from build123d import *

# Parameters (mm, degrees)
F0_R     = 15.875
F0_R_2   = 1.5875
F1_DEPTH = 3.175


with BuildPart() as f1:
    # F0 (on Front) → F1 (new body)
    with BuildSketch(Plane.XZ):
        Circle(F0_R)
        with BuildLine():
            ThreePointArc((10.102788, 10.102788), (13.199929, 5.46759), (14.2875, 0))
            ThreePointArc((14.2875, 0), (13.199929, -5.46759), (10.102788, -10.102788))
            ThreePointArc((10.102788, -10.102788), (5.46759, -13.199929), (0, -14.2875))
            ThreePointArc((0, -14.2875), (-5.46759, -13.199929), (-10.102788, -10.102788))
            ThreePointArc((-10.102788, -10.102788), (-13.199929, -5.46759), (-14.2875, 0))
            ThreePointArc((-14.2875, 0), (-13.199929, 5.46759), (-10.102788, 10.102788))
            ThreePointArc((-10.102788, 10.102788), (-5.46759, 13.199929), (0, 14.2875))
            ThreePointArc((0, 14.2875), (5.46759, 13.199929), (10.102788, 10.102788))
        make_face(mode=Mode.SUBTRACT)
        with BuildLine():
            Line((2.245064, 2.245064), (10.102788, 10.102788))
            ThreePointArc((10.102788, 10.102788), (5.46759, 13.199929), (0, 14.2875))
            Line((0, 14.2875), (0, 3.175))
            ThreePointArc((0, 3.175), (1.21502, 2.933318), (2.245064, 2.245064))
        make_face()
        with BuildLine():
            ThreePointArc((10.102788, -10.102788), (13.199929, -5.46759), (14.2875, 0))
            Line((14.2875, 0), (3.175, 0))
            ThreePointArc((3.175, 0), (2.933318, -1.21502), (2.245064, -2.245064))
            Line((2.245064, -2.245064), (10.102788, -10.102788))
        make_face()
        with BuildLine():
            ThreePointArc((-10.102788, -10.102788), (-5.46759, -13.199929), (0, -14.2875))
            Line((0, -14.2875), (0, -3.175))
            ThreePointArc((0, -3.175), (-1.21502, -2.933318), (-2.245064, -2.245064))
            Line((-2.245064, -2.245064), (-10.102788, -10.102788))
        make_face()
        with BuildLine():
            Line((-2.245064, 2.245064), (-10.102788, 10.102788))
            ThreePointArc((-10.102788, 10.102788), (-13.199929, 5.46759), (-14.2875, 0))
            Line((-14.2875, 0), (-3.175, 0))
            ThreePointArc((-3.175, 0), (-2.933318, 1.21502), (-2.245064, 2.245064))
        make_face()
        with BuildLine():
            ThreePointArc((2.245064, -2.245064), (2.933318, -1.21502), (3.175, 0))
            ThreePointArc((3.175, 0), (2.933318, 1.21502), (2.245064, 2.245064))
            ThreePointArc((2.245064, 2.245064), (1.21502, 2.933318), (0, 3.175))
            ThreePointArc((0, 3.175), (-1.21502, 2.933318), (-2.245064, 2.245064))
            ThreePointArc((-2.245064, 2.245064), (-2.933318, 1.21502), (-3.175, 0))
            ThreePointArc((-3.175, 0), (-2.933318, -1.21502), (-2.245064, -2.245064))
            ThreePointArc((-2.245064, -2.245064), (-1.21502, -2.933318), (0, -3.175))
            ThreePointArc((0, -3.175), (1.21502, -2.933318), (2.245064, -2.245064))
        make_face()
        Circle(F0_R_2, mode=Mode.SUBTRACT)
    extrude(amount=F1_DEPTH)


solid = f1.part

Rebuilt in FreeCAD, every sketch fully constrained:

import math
import FreeCAD as App
import Part
import Sketcher
from FreeCAD import Vector
Q = App.Units.Quantity

doc = App.newDocument("Part")
body = doc.addObject("PartDesign::Body", "Body")

sketch1 = body.newObject("Sketcher::SketchObject", "Sketch")
sketch1.AttachmentSupport = (doc.getObject("XZ_Plane"), [""])
sketch1.MapMode = "FlatFace"
sketch1.addGeometry(Part.Circle(Vector(0, 0, 0), Vector(0, 0, 1), 15.875), False)
sketch1.addGeometry(Part.LineSegment(Vector(-2.245064, -2.245064, 0), Vector(-10.102788, -10.102788, 0)), False)
sketch1.addGeometry(Part.ArcOfCircle(Part.Circle(Vector(-0.000005, -0.000002, 0), Vector(0, 0, 1), 14.287495), math.radians(179.999992), math.radians(225.00001)), False)
sketch1.addGeometry(Part.LineSegment(Vector(-14.2875, 0, 0), Vector(-3.175, 0, 0)), False)
sketch1.addGeometry(Part.ArcOfCircle(Part.Circle(Vector(-0.000006, -0.000003, 0), Vector(0, 0, 1), 3.174994), math.radians(179.999955), math.radians(225.000047)), False)
sketch1.addGeometry(Part.LineSegment(Vector(2.245064, -2.245064, 0), Vector(10.102788, -10.102788, 0)), False)
sketch1.addGeometry(Part.ArcOfCircle(Part.Circle(Vector(0.000002, -0.000005, 0), Vector(0, 0, 1), 14.287495), math.radians(-90.000008), math.radians(-44.99999)), False)
sketch1.addGeometry(Part.LineSegment(Vector(0, -14.2875, 0), Vector(0, -3.175, 0)), False)
sketch1.addGeometry(Part.ArcOfCircle(Part.Circle(Vector(0.000003, -0.000006, 0), Vector(0, 0, 1), 3.174994), math.radians(-90.000045), math.radians(-44.999953)), False)
sketch1.addGeometry(Part.ArcOfCircle(Part.Circle(Vector(-0.000002, 0.000005, 0), Vector(0, 0, 1), 14.287495), math.radians(89.999992), math.radians(135.00001)), False)
sketch1.addGeometry(Part.LineSegment(Vector(0, 14.2875, 0), Vector(0, 3.175, 0)), False)
sketch1.addGeometry(Part.ArcOfCircle(Part.Circle(Vector(-0.000003, 0.000006, 0), Vector(0, 0, 1), 3.174994), math.radians(89.999955), math.radians(135.000047)), False)
sketch1.addGeometry(Part.LineSegment(Vector(-2.245064, 2.245064, 0), Vector(-10.102788, 10.102788, 0)), False)
sketch1.addGeometry(Part.Circle(Vector(0, 0, 0), Vector(0, 0, 1), 1.5875), False)
sketch1.addGeometry(Part.LineSegment(Vector(2.245064, 2.245064, 0), Vector(10.102788, 10.102788, 0)), False)
sketch1.addGeometry(Part.ArcOfCircle(Part.Circle(Vector(0.000005, 0.000002, 0), Vector(0, 0, 1), 14.287495), math.radians(-0.000008), math.radians(45.00001)), False)
sketch1.addGeometry(Part.LineSegment(Vector(14.2875, 0, 0), Vector(3.175, 0, 0)), False)
sketch1.addGeometry(Part.ArcOfCircle(Part.Circle(Vector(0.000006, 0.000003, 0), Vector(0, 0, 1), 3.174994), math.radians(-0.000045), math.radians(45.000047)), False)
sketch1.addConstraint(Sketcher.Constraint("Coincident", 1, 2, 2, 2))
sketch1.addConstraint(Sketcher.Constraint("Coincident", 2, 1, 3, 1))
sketch1.addConstraint(Sketcher.Constraint("Coincident", 3, 2, 4, 1))
sketch1.addConstraint(Sketcher.Constraint("Coincident", 4, 2, 1, 1))
sketch1.addConstraint(Sketcher.Constraint("Coincident", 5, 2, 6, 2))
sketch1.addConstraint(Sketcher.Constraint("Coincident", 6, 1, 7, 1))
sketch1.addConstraint(Sketcher.Constraint("Coincident", 7, 2, 8, 1))
sketch1.addConstraint(Sketcher.Constraint("Coincident", 8, 2, 5, 1))
sketch1.addConstraint(Sketcher.Constraint("Coincident", 9, 1, 10, 1))
sketch1.addConstraint(Sketcher.Constraint("Coincident", 10, 2, 11, 1))
sketch1.addConstraint(Sketcher.Constraint("Coincident", 11, 2, 12, 1))
sketch1.addConstraint(Sketcher.Constraint("Coincident", 12, 2, 9, 2))
sketch1.addConstraint(Sketcher.Constraint("Coincident", 14, 2, 15, 2))
sketch1.addConstraint(Sketcher.Constraint("Coincident", 15, 1, 16, 1))
sketch1.addConstraint(Sketcher.Constraint("Coincident", 16, 2, 17, 1))
sketch1.addConstraint(Sketcher.Constraint("Coincident", 17, 2, 14, 1))
sketch1.addConstraint(Sketcher.Constraint("Horizontal", 3))
sketch1.addConstraint(Sketcher.Constraint("Vertical", 7))
sketch1.addConstraint(Sketcher.Constraint("Vertical", 10))
sketch1.addConstraint(Sketcher.Constraint("Horizontal", 16))
sketch1.addConstraint(Sketcher.Constraint("Coincident", 0, 3, -1, 1))
sketch1.addConstraint(Sketcher.Constraint("Coincident", 2, 3, -1, 1))
sketch1.addConstraint(Sketcher.Constraint("Coincident", 4, 3, -1, 1))
sketch1.addConstraint(Sketcher.Constraint("Coincident", 6, 3, -1, 1))
sketch1.addConstraint(Sketcher.Constraint("Coincident", 8, 3, -1, 1))
sketch1.addConstraint(Sketcher.Constraint("Coincident", 9, 3, -1, 1))
sketch1.addConstraint(Sketcher.Constraint("Coincident", 11, 3, -1, 1))
sketch1.addConstraint(Sketcher.Constraint("Coincident", 13, 3, -1, 1))
sketch1.addConstraint(Sketcher.Constraint("Coincident", 15, 3, -1, 1))
sketch1.addConstraint(Sketcher.Constraint("Coincident", 17, 3, -1, 1))
sketch1.addConstraint(Sketcher.Constraint("Equal", 2, 6))
sketch1.addConstraint(Sketcher.Constraint("Equal", 4, 8))
sketch1.addConstraint(Sketcher.Constraint("Equal", 6, 9))
sketch1.addConstraint(Sketcher.Constraint("Equal", 8, 11))
sketch1.addConstraint(Sketcher.Constraint("Equal", 9, 15))
sketch1.addConstraint(Sketcher.Constraint("Equal", 11, 17))
sketch1.addConstraint(Sketcher.Constraint("PointOnObject", 2, 1, -1))
sketch1.addConstraint(Sketcher.Constraint("PointOnObject", 6, 1, -2))
sketch1.addConstraint(Sketcher.Constraint("PointOnObject", 9, 1, -2))
sketch1.addConstraint(Sketcher.Constraint("PointOnObject", 15, 1, -1))
sketch1.addConstraint(Sketcher.Constraint("Perpendicular", 1, 5))
sketch1.addConstraint(Sketcher.Constraint("Parallel", 5, 12))
sketch1.addConstraint(Sketcher.Constraint("Perpendicular", 12, 14))
sketch1.addConstraint(Sketcher.Constraint("Horizontal", 1, 2, 5, 2))
sketch1.addConstraint(Sketcher.Constraint("Horizontal", 4, 2, 8, 2))
sketch1.addConstraint(Sketcher.Constraint("Horizontal", 12, 2, 14, 2))
sketch1.addConstraint(Sketcher.Constraint("Vertical", 4, 2, 11, 2))
sketch1.addConstraint(Sketcher.Constraint("Diameter", 0, Q("1.25 in")))
sketch1.addConstraint(Sketcher.Constraint("Diameter", 13, Q("0.125 in")))
sketch1.addConstraint(Sketcher.Constraint("DistanceX", 3, 1, 3, 2, Q("0.4375 in")))
sketch1.addConstraint(Sketcher.Constraint("DistanceX", 2, 1, -1, 1, Q("0.5625 in")))
sketch1.addConstraint(Sketcher.Constraint("DistanceX", 1, 2, 4, 3, 10.102782))
pad1 = body.newObject("PartDesign::Pad", "Pad")
pad1.Profile = sketch1
pad1.Length = Q("0.125 in")

doc.recompute()
